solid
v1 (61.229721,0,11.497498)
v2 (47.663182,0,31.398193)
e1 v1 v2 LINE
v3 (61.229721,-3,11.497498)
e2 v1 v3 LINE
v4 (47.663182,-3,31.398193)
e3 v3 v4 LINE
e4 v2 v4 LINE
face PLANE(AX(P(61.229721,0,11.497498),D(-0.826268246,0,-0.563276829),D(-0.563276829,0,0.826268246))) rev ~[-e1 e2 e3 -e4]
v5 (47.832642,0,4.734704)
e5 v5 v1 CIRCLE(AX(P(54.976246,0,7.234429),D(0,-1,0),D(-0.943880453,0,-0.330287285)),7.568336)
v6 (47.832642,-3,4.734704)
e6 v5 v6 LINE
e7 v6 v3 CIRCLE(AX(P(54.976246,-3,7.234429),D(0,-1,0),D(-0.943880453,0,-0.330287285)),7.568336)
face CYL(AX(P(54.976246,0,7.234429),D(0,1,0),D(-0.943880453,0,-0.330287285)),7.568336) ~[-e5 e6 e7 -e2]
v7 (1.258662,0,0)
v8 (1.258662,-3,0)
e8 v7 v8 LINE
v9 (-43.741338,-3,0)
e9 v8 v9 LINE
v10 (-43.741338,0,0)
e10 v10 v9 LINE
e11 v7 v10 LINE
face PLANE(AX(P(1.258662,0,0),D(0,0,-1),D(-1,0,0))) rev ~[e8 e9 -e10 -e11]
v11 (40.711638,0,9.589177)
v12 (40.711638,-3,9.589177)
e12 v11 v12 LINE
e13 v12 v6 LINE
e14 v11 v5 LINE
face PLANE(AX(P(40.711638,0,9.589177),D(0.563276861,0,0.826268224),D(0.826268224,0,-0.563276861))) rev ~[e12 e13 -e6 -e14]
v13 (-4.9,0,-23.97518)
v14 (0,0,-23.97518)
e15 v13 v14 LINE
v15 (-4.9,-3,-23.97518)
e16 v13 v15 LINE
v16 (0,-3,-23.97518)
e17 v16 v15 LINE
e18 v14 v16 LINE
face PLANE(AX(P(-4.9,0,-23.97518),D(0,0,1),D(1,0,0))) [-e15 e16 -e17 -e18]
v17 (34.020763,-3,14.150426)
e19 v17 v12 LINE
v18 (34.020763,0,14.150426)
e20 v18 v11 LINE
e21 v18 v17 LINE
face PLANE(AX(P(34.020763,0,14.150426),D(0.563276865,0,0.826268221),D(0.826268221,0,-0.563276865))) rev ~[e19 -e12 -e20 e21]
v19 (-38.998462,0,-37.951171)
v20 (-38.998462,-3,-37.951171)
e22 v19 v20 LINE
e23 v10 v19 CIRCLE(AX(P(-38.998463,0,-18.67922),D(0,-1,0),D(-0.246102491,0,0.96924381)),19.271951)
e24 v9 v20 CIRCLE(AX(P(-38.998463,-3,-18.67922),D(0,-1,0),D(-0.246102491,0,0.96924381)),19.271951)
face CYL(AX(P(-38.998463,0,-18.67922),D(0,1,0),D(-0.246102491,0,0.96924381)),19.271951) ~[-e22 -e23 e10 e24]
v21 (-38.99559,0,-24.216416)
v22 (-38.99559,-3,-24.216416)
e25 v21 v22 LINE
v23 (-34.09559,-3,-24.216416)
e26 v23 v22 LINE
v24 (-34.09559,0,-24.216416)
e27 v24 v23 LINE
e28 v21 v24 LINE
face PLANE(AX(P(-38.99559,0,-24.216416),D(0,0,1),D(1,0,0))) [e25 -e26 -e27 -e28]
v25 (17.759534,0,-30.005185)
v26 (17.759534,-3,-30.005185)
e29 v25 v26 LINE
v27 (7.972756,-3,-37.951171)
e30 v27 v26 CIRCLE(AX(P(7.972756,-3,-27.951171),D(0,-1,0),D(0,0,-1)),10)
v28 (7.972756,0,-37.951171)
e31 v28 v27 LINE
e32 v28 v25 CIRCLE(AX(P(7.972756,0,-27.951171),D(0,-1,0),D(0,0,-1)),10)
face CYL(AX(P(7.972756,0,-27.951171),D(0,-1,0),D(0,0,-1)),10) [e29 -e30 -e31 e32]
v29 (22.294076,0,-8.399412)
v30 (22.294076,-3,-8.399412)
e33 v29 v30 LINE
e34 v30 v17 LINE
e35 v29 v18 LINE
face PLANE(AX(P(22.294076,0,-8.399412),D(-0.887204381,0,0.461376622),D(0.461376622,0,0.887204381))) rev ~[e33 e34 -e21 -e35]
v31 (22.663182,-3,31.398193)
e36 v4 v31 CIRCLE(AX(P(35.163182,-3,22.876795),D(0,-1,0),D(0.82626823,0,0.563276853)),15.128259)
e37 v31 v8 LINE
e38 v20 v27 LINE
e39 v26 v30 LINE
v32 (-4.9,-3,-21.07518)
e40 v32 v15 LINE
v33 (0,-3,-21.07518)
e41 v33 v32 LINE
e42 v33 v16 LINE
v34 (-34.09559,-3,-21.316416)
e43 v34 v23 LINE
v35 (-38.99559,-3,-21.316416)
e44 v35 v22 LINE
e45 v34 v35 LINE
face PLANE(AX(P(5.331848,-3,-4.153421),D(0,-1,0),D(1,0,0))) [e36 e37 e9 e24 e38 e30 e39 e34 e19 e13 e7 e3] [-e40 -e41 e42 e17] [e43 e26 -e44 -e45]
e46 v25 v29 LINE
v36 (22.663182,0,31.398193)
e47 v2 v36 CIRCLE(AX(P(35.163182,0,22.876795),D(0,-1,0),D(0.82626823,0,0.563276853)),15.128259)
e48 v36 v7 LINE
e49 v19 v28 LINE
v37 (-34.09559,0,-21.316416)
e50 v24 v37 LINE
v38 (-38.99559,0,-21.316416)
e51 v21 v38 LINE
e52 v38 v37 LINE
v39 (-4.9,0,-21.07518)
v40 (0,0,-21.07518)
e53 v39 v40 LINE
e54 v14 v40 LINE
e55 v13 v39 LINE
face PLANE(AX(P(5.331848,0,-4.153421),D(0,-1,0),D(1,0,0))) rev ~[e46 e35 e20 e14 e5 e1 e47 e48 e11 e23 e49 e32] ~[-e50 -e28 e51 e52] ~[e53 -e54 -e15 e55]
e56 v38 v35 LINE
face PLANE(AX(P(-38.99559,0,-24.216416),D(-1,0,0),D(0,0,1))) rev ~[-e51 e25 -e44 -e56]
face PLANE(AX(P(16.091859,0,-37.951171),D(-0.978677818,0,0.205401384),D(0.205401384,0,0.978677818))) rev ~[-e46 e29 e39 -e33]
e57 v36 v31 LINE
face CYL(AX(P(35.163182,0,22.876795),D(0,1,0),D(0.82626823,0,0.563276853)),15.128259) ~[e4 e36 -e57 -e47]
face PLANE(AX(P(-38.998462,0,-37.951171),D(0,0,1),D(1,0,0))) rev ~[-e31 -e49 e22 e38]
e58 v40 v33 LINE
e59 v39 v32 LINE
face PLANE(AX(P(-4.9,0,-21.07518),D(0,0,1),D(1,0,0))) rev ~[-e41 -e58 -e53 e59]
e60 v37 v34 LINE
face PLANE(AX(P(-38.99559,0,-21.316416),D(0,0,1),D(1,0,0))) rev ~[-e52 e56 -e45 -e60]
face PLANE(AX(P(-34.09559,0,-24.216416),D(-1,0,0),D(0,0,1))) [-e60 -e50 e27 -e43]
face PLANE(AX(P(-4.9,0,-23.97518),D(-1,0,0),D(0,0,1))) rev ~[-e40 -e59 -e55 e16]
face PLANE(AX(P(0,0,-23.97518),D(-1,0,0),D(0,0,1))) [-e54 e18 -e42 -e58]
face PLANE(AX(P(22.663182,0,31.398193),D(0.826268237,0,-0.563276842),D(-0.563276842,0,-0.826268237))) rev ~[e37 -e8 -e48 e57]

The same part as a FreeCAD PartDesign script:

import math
import FreeCAD as App
import Part
import Sketcher

V = App.Vector


def edges_at(feature, points):
    """Names of the edges that pass closest to the given points."""
    edges = feature.Shape.Edges
    near = lambda p: min(range(len(edges)), key=lambda i: edges[i].distToShape(Part.Vertex(*p))[0])
    return sorted({f"Edge{near(p) + 1}" for p in points})


def add_polygon(sketch, points):
    """Adds a closed chain of lines whose ends are joined by coincident constraints."""
    first, n = sketch.GeometryCount, len(points)
    for a, b in zip(points, points[1:] + points[:1]):
        sketch.addGeometry(Part.LineSegment(App.Vector(*a, 0), App.Vector(*b, 0)), False)
    for i in range(n):
        sketch.addConstraint(Sketcher.Constraint("Coincident", first + i, 2, first + (i + 1) % n, 1))

doc = App.newDocument("Part")
params = doc.addObject("Spreadsheet::Sheet", "Params")
for row, (alias, value) in enumerate([
    ("sketch1_width", "45 mm"),
    ("sketch1_length", "38 mm"),
    ("pad1_length", "3 mm"),
    ("fillet_radius", "10 mm"),
    ("sketch2_width", "4.9 mm"),
    ("sketch2_height", "2.9 mm"),
    ("pocket1_length", "25 mm"),
    ("sketch3_width", "4.9 mm"),
    ("sketch3_height", "2.9 mm"),
    ("pocket2_length", "25 mm"),
], start=1):
    params.set(f"A{row}", alias)
    params.set(f"B{row}", "=" + value)
    params.setAlias(f"B{row}", alias)

body = doc.addObject("PartDesign::Body", "Body")

# Sketch on XZ plane
sketch1 = body.newObject("Sketcher::SketchObject", "Sketch")
sketch1.AttachmentSupport = (doc.getObject("XZ_Plane"), [""])
sketch1.MapMode = "FlatFace"
sketch1.addGeometry(Part.ArcOfCircle(Part.Circle(V(-39, -19, 0), V(0, 0, 1), 19), math.radians(104), math.radians(270)), False)
sketch1.addGeometry(Part.LineSegment(V(-39, -38, 0), V(16, -38, 0)), False)
sketch1.addGeometry(Part.LineSegment(V(16, -38, 0), V(22, -8, 0)), False)
sketch1.addGeometry(Part.LineSegment(V(22, -8, 0), V(34, 14, 0)), False)
sketch1.addGeometry(Part.LineSegment(V(34, 14, 0), V(41, 10, 0)), False)
sketch1.addGeometry(Part.LineSegment(V(41, 10, 0), V(48, 5, 0)), False)
sketch1.addGeometry(Part.ArcOfCircle(Part.Circle(V(55, 7, 0), V(0, 0, 1), 8), math.radians(-161), math.radians(34)), False)
sketch1.addGeometry(Part.LineSegment(V(61, 11, 0), V(48, 31, 0)), False)
sketch1.addGeometry(Part.ArcOfCircle(Part.Circle(V(35, 23, 0), V(0, 0, 1), 15), math.radians(34), math.radians(146)), False)
sketch1.addGeometry(Part.LineSegment(V(23, 31, 0), V(1, 0, 0)), False)
sketch1.addGeometry(Part.LineSegment(V(1, 0, 0), V(-44, 0, 0)), False)
sketch1.addConstraint(Sketcher.Constraint("Tangent", 0, 2, 1, 1))
sketch1.addConstraint(Sketcher.Constraint("Coincident", 1, 2, 2, 1))
sketch1.addConstraint(Sketcher.Constraint("Coincident", 2, 2, 3, 1))
sketch1.addConstraint(Sketcher.Constraint("Coincident", 3, 2, 4, 1))
sketch1.addConstraint(Sketcher.Constraint("Coincident", 4, 2, 5, 1))
sketch1.addConstraint(Sketcher.Constraint("Coincident", 5, 2, 6, 1))
sketch1.addConstraint(Sketcher.Constraint("Tangent", 6, 2, 7, 1))
sketch1.addConstraint(Sketcher.Constraint("Tangent", 7, 2, 8, 1))
sketch1.addConstraint(Sketcher.Constraint("Tangent", 8, 2, 9, 1))
sketch1.addConstraint(Sketcher.Constraint("Coincident", 9, 2, 10, 1))
sketch1.addConstraint(Sketcher.Constraint("Coincident", 10, 2, 0, 1))
sketch1.addConstraint(Sketcher.Constraint("Horizontal", 1))
sketch1.addConstraint(Sketcher.Constraint("Horizontal", 10))
sketch1.addConstraint(Sketcher.Constraint("PointOnObject", 9, 2, -1))
sketch1.addConstraint(Sketcher.Constraint("Parallel", 4, 5))
sketch1.addConstraint(Sketcher.Constraint("Perpendicular", 5, 9))
sketch1.addConstraint(Sketcher.Constraint("Horizontal", 7, 2, 8, 2))
sketch1.addConstraint(Sketcher.Constraint("DistanceX", 10, 2, 10, 1, 45.0))
sketch1.addConstraint(Sketcher.Constraint("Distance", 9, 38.0))
sketch1.addConstraint(Sketcher.Constraint("DistanceX", 8, 2, 7, 2, 25.0))
sketch1.addConstraint(Sketcher.Constraint("Radius", 0, 19.271951))
sketch1.addConstraint(Sketcher.Constraint("Radius", 8, 15.128259))
sketch1.addConstraint(Sketcher.Constraint("Radius", 6, 7.568336))
sketch1.addConstraint(Sketcher.Constraint("DistanceX", 1, 1, 1, 2, 55.090321))
sketch1.addConstraint(Sketcher.Constraint("DistanceY", 0, 2, 6, 3, 45.1856))
sketch1.addConstraint(Sketcher.Constraint("DistanceX", 9, 2, 3, 2, 32.762101))
sketch1.addConstraint(Sketcher.Constraint("Distance", 5, 8.618272))
sketch1.addConstraint(Sketcher.Constraint("Distance", 7, 24.085029))
sketch1.addConstraint(Sketcher.Constraint("DistanceX", -1, 1, 1, 2, 16.091859))
sketch1.addConstraint(Sketcher.Constraint("DistanceY", 1, 2, 2, 2, 29.551759))
sketch1.addConstraint(Sketcher.Constraint("DistanceX", 2, 2, 6, 3, 32.68217))
sketch1.addConstraint(Sketcher.Constraint("DistanceY", 3, 2, 8, 3, 8.726369))
sketch1.setExpression("Constraints[17]", "Params.sketch1_width")
sketch1.setExpression("Constraints[18]", "Params.sketch1_length")
pad1 = body.newObject("PartDesign::Pad", "Pad")
pad1.Profile = sketch1
pad1.setExpression("Length", "Params.pad1_length")
doc.recompute()

fillet = body.newObject("PartDesign::Fillet", "Fillet")
fillet.Base = (pad1, edges_at(pad1, [(16.092, -1.5, -37.951)]))
fillet.setExpression("Radius", "Params.fillet_radius")

# Sketch on XZ plane
sketch2 = body.newObject("Sketcher::SketchObject", "Sketch001")
sketch2.AttachmentSupport = (doc.getObject("XZ_Plane"), [""])
sketch2.MapMode = "FlatFace"
add_polygon(sketch2, [(-39, -21.3), (-39, -24.2), (-34.1, -24.2), (-34.1, -21.3)])  # lines 0-3
add_polygon(sketch2, [(-4.9, -21.1), (-4.9, -24), (0, -24), (0, -21.1)])  # lines 4-7
sketch2.addConstraint(Sketcher.Constraint("Vertical", 0))
sketch2.addConstraint(Sketcher.Constraint("Horizontal", 1))
sketch2.addConstraint(Sketcher.Constraint("Vertical", 2))
sketch2.addConstraint(Sketcher.Constraint("Horizontal", 3))
sketch2.addConstraint(Sketcher.Constraint("Vertical", 4))
sketch2.addConstraint(Sketcher.Constraint("Horizontal", 5))
sketch2.addConstraint(Sketcher.Constraint("Vertical", 6))
sketch2.addConstraint(Sketcher.Constraint("Horizontal", 7))
sketch2.addConstraint(Sketcher.Constraint("PointOnObject", 5, 2, -2))
sketch2.addConstraint(Sketcher.Constraint("Equal", 3, 5))
sketch2.addConstraint(Sketcher.Constraint("Equal", 2, 4))
sketch2.addConstraint(Sketcher.Constraint("DistanceX", 1, 1, 1, 2, 4.9))
sketch2.addConstraint(Sketcher.Constraint("DistanceY", 0, 2, 0, 1, 2.9))
sketch2.addConstraint(Sketcher.Constraint("DistanceX", 0, 2, -1, 1, 38.99559))
sketch2.addConstraint(Sketcher.Constraint("DistanceY", 4, 2, -1, 1, 23.97518))
sketch2.addConstraint(Sketcher.Constraint("DistanceY", 0, 2, -1, 1, 24.216416))
sketch2.setExpression("Constraints[19]", "Params.sketch2_width")
sketch2.setExpression("Constraints[20]", "Params.sketch2_height")
pocket1 = body.newObject("PartDesign::Pocket", "Pocket")
pocket1.Profile = sketch2
pocket1.setExpression("Length", "Params.pocket1_length")

# Sketch on XZ plane
sketch3 = body.newObject("Sketcher::SketchObject", "Sketch002")
sketch3.AttachmentSupport = (doc.getObject("XZ_Plane"), [""])
sketch3.MapMode = "FlatFace"
add_polygon(sketch3, [(-39, -21.3), (-39, -24.2), (-34.1, -24.2), (-34.1, -21.3)])  # lines 0-3
add_polygon(sketch3, [(-4.9, -21.1), (-4.9, -24), (0, -24), (0, -21.1)])  # lines 4-7
sketch3.addConstraint(Sketcher.Constraint("Vertical", 0))
sketch3.addConstraint(Sketcher.Constraint("Horizontal", 1))
sketch3.addConstraint(Sketcher.Constraint("Vertical", 2))
sketch3.addConstraint(Sketcher.Constraint("Horizontal", 3))
sketch3.addConstraint(Sketcher.Constraint("Vertical", 4))
sketch3.addConstraint(Sketcher.Constraint("Horizontal", 5))
sketch3.addConstraint(Sketcher.Constraint("Vertical", 6))
sketch3.addConstraint(Sketcher.Constraint("Horizontal", 7))
sketch3.addConstraint(Sketcher.Constraint("PointOnObject", 5, 2, -2))
sketch3.addConstraint(Sketcher.Constraint("Equal", 3, 5))
sketch3.addConstraint(Sketcher.Constraint("Equal", 2, 4))
sketch3.addConstraint(Sketcher.Constraint("DistanceX", 1, 1, 1, 2, 4.9))
sketch3.addConstraint(Sketcher.Constraint("DistanceY", 0, 2, 0, 1, 2.9))
sketch3.addConstraint(Sketcher.Constraint("DistanceX", 0, 2, -1, 1, 38.99559))
sketch3.addConstraint(Sketcher.Constraint("DistanceY", 4, 2, -1, 1, 23.97518))
sketch3.addConstraint(Sketcher.Constraint("DistanceY", 0, 2, -1, 1, 24.216416))
sketch3.setExpression("Constraints[19]", "Params.sketch3_width")
sketch3.setExpression("Constraints[20]", "Params.sketch3_height")
pocket2 = body.newObject("PartDesign::Pocket", "Pocket001")
pocket2.Profile = sketch3
pocket2.setExpression("Length", "Params.pocket2_length")
pocket2.Reversed = True

doc.recompute()
